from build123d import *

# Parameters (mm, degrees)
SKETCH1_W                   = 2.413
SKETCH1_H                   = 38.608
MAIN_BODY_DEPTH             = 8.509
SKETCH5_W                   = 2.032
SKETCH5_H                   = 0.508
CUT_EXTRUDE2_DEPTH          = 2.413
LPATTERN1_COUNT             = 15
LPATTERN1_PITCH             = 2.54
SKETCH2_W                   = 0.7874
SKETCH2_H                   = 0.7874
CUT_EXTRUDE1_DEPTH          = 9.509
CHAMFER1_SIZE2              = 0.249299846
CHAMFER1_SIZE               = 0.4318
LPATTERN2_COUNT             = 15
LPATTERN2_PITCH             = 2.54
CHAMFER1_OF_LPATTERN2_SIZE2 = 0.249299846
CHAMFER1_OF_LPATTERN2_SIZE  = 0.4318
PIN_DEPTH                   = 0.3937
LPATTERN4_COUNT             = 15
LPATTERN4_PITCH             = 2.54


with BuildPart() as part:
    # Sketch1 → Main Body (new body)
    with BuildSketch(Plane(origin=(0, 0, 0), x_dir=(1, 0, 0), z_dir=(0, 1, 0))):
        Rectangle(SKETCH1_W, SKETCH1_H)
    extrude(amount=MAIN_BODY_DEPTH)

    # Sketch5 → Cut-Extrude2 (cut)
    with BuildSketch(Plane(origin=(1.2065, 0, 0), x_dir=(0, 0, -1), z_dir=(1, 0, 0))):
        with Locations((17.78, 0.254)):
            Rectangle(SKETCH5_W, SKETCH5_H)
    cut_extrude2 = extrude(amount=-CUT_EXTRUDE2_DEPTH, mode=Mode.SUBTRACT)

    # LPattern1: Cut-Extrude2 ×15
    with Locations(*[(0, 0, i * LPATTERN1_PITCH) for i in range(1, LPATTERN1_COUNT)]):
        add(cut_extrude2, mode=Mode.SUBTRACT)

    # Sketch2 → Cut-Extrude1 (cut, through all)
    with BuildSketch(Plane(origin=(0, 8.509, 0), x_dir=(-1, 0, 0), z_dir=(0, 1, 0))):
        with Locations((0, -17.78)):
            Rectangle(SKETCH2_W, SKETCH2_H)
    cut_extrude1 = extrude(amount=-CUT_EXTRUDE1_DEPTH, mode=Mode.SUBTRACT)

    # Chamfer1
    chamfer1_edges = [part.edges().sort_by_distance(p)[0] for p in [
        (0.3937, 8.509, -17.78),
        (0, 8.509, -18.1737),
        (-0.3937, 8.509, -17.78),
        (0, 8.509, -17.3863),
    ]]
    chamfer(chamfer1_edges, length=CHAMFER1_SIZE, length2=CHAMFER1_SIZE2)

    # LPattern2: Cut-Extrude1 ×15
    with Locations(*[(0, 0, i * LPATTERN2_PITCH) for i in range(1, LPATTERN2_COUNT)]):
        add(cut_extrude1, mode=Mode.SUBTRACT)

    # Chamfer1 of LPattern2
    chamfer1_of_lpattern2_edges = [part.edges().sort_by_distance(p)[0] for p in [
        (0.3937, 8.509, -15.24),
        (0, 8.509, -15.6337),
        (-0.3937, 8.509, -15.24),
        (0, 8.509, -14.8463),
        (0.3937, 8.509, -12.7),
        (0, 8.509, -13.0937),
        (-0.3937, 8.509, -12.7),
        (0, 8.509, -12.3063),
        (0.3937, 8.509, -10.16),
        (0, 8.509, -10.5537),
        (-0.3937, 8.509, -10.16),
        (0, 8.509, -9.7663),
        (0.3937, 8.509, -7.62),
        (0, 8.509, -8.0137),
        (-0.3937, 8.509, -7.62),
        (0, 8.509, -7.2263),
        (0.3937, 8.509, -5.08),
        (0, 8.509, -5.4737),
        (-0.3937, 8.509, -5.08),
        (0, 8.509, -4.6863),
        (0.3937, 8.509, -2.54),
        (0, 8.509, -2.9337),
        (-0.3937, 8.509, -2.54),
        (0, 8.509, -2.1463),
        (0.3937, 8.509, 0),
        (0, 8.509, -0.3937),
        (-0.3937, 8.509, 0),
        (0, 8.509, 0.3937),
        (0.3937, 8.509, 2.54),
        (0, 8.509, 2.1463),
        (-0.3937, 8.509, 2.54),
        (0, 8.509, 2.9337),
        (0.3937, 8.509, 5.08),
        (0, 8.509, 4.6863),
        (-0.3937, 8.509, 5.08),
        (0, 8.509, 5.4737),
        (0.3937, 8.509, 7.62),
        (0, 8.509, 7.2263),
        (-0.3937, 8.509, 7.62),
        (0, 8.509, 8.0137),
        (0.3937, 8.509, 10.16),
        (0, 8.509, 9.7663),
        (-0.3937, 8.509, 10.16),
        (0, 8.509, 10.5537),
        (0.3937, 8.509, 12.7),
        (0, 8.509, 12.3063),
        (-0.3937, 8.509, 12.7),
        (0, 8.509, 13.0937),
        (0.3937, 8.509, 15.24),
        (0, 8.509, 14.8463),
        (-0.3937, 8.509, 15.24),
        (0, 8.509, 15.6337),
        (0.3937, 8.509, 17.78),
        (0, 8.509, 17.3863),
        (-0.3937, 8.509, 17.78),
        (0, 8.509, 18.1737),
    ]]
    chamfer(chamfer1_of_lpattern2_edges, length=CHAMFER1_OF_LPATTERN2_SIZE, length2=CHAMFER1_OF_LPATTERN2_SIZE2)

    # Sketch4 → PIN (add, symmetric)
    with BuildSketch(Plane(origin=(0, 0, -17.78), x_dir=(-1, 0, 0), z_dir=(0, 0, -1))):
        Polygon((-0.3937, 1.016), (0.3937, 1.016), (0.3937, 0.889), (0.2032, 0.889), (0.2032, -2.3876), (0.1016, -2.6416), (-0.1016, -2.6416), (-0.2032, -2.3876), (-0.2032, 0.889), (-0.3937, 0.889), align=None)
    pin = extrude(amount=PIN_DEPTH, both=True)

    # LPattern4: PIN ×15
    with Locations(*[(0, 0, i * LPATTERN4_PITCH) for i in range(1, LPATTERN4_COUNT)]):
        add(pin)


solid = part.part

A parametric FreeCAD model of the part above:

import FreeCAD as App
import Part
import Sketcher
from FreeCAD import Vector
Q = App.Units.Quantity


def edges_at(feature, points):
    """Names of the edges that pass closest to the given points."""
    edges = feature.Shape.Edges
    near = lambda p: min(range(len(edges)), key=lambda i: edges[i].distToShape(Part.Vertex(*p))[0])
    return sorted({f"Edge{near(p) + 1}" for p in points})


def add_polygon(sketch, points):
    """Adds a closed chain of lines whose ends are joined by coincident constraints."""
    first, n = sketch.GeometryCount, len(points)
    for a, b in zip(points, points[1:] + points[:1]):
        sketch.addGeometry(Part.LineSegment(App.Vector(*a, 0), App.Vector(*b, 0)), False)
    for i in range(n):
        sketch.addConstraint(Sketcher.Constraint("Coincident", first + i, 2, first + (i + 1) % n, 1))

doc = App.newDocument("Part")
body = doc.addObject("PartDesign::Body", "Body")

# Sketch on XZ plane
sketch1 = body.newObject("Sketcher::SketchObject", "Sketch")
sketch1.AttachmentSupport = (doc.getObject("XZ_Plane"), [""])
sketch1.MapMode = "FlatFace"
add_polygon(sketch1, [(-1.2, -19.3), (-1.2, 19.3), (1.2, 19.3), (1.2, -19.3)])  # lines 0-3
sketch1.addConstraint([
    Sketcher.Constraint("Vertical", 0),
    Sketcher.Constraint("Horizontal", 1),
    Sketcher.Constraint("Vertical", 2),
    Sketcher.Constraint("Horizontal", 3),
    Sketcher.Constraint("Symmetric", 0, 2, 2, 2, -1, 1),
    Sketcher.Constraint("DistanceY", 0, 1, 0, 2, Q("1.52 in")),
    Sketcher.Constraint("DistanceX", 1, 1, 1, 2, Q("0.095 in")),
])
pad1 = body.newObject("PartDesign::Pad", "Pad")
pad1.Profile = sketch1
pad1.Length = Q("0.335 in")
pad1.Reversed = True

# Sketch on YZ plane
sketch2 = body.newObject("Sketcher::SketchObject", "Sketch001")
sketch2.AttachmentSupport = (doc.getObject("YZ_Plane"), [""])
sketch2.MapMode = "FlatFace"
sketch2.AttachmentOffset = App.Placement(Vector(0, 0, 0.0475 * 25.4), App.Rotation())
add_polygon(sketch2, [(0.5, -16.8), (0, -16.8), (0, -18.8), (0.5, -18.8)])  # lines 0-3
sketch2.addConstraint([
    Sketcher.Constraint("Horizontal", 0),
    Sketcher.Constraint("Vertical", 1),
    Sketcher.Constraint("Horizontal", 2),
    Sketcher.Constraint("Vertical", 3),
    Sketcher.Constraint("PointOnObject", 0, 2, -2),
    Sketcher.Constraint("DistanceX", 0, 2, 0, 1, Q("0.02 in")),
    Sketcher.Constraint("DistanceY", 1, 2, 1, 1, Q("0.08 in")),
    Sketcher.Constraint("DistanceY", 0, 2, -1, 1, Q("0.66 in")),
])
pocket1 = body.newObject("PartDesign::Pocket", "Pocket")
pocket1.Profile = sketch2
pocket1.Length = Q("0.095 in")
doc.recompute()

linearpattern = body.newObject("PartDesign::LinearPattern", "LinearPattern")
linearpattern.Originals = [pocket1]
linearpattern.Direction = (doc.getObject("Z_Axis"), [""])
linearpattern.Mode = "offset"
linearpattern.Offset = Q("0.1 in")
linearpattern.Occurrences = 15
body.Tip = linearpattern

# Sketch on XZ plane
sketch3 = body.newObject("Sketcher::SketchObject", "Sketch002")
sketch3.AttachmentSupport = (doc.getObject("XZ_Plane"), [""])
sketch3.MapMode = "FlatFace"
sketch3.AttachmentOffset = App.Placement(Vector(0, 0, -0.335 * 25.4), App.Rotation())
add_polygon(sketch3, [(0.4, -17.4), (0.4, -18.2), (-0.4, -18.2), (-0.4, -17.4)])  # lines 0-3
sketch3.addConstraint([
    Sketcher.Constraint("Vertical", 0),
    Sketcher.Constraint("Horizontal", 1),
    Sketcher.Constraint("Vertical", 2),
    Sketcher.Constraint("Horizontal", 3),
    Sketcher.Constraint("Equal", 3, 0),
    Sketcher.Constraint("DistanceX", 1, 2, 1, 1, Q("0.031 in")),
    Sketcher.Constraint("DistanceX", -1, 1, 0, 2, Q("0.0155 in")),
    Sketcher.Constraint("DistanceY", 0, 2, -1, 1, Q("0.7155 in")),
])
pocket2 = body.newObject("PartDesign::Pocket", "Pocket001")
pocket2.Profile = sketch3
pocket2.Type = "ThroughAll"
pocket2.Reversed = True
doc.recompute()

chamfer = body.newObject("PartDesign::Chamfer", "Chamfer")
chamfer.Base = (pocket2, edges_at(pocket2, [
    (0.394, 8.509, -17.78),
    (0, 8.509, -18.174),
    (-0.394, 8.509, -17.78),
    (0, 8.509, -17.386),
]))
chamfer.ChamferType = "Two distances"
chamfer.Size = Q("0.017 in")
chamfer.Size2 = 0.2493
doc.recompute()

linearpattern2 = body.newObject("PartDesign::LinearPattern", "LinearPattern001")
linearpattern2.Originals = [pocket2]
linearpattern2.Direction = (doc.getObject("Z_Axis"), [""])
linearpattern2.Mode = "offset"
linearpattern2.Offset = Q("0.1 in")
linearpattern2.Occurrences = 15
body.Tip = linearpattern2
doc.recompute()

chamfer2 = body.newObject("PartDesign::Chamfer", "Chamfer001")
chamfer2.Base = (linearpattern2, edges_at(linearpattern2, [
    (0.394, 8.509, -15.24),
    (0, 8.509, -15.634),
    (-0.394, 8.509, -15.24),
    (0, 8.509, -14.846),
    (0.394, 8.509, -12.7),
    (0, 8.509, -13.094),
    (-0.394, 8.509, -12.7),
    (0, 8.509, -12.306),
    (0.394, 8.509, -10.16),
    (0, 8.509, -10.554),
    (-0.394, 8.509, -10.16),
    (0, 8.509, -9.766),
    (0.394, 8.509, -7.62),
    (0, 8.509, -8.014),
    (-0.394, 8.509, -7.62),
    (0, 8.509, -7.226),
    (0.394, 8.509, -5.08),
    (0, 8.509, -5.474),
    (-0.394, 8.509, -5.08),
    (0, 8.509, -4.686),
    (0.394, 8.509, -2.54),
    (0, 8.509, -2.934),
    (-0.394, 8.509, -2.54),
    (0, 8.509, -2.146),
    (0.394, 8.509, 0),
    (0, 8.509, -0.394),
    (-0.394, 8.509, 0),
    (0, 8.509, 0.394),
    (0.394, 8.509, 2.54),
    (0, 8.509, 2.146),
    (-0.394, 8.509, 2.54),
    (0, 8.509, 2.934),
    (0.394, 8.509, 5.08),
    (0, 8.509, 4.686),
    (-0.394, 8.509, 5.08),
    (0, 8.509, 5.474),
    (0.394, 8.509, 7.62),
    (0, 8.509, 7.226),
    (-0.394, 8.509, 7.62),
    (0, 8.509, 8.014),
    (0.394, 8.509, 10.16),
    (0, 8.509, 9.766),
    (-0.394, 8.509, 10.16),
    (0, 8.509, 10.554),
    (0.394, 8.509, 12.7),
    (0, 8.509, 12.306),
    (-0.394, 8.509, 12.7),
    (0, 8.509, 13.094),
    (0.394, 8.509, 15.24),
    (0, 8.509, 14.846),
    (-0.394, 8.509, 15.24),
    (0, 8.509, 15.634),
    (0.394, 8.509, 17.78),
    (0, 8.509, 17.386),
    (-0.394, 8.509, 17.78),
    (0, 8.509, 18.174),
]))
chamfer2.ChamferType = "Two distances"
chamfer2.Size = Q("0.017 in")
chamfer2.Size2 = 0.2493

# Sketch on XY plane
sketch4 = body.newObject("Sketcher::SketchObject", "Sketch003")
sketch4.AttachmentSupport = (doc.getObject("XY_Plane"), [""])
sketch4.MapMode = "FlatFace"
sketch4.AttachmentOffset = App.Placement(Vector(0, 0, -0.7 * 25.4), App.Rotation())
add_polygon(sketch4, [(-0.39, 1.02), (0.39, 1.02), (0.39, 0.89), (0.2, 0.89), (0.2, -2.39), (0.1, -2.64), (-0.1, -2.64), (-0.2, -2.39), (-0.2, 0.89), (-0.39, 0.89)])  # lines 0-9
sketch4.addConstraint([
    Sketcher.Constraint("Horizontal", 0),
    Sketcher.Constraint("Vertical", 1),
    Sketcher.Constraint("Horizontal", 2),
    Sketcher.Constraint("Vertical", 3),
    Sketcher.Constraint("Horizontal", 5),
    Sketcher.Constraint("Vertical", 7),
    Sketcher.Constraint("Horizontal", 8),
    Sketcher.Constraint("Vertical", 9),
    Sketcher.Constraint("Symmetric", 3, 2, 6, 2, -2),
    Sketcher.Constraint("Symmetric", 1, 2, 8, 2, -2),
    Sketcher.Constraint("Equal", 4, 6),
    Sketcher.Constraint("DistanceX", 0, 1, 0, 2, Q("0.031 in")),
    Sketcher.Constraint("DistanceX", 5, 2, 5, 1, Q("0.008 in")),
    Sketcher.Constraint("DistanceY", 1, 2, 1, 1, Q("0.005 in")),
    Sketcher.Constraint("DistanceY", 3, 2, 3, 1, Q("0.129 in")),
    Sketcher.Constraint("DistanceY", -1, 1, 0, 2, Q("0.04 in")),
    Sketcher.Constraint("DistanceY", 4, 2, 3, 2, Q("0.01 in")),
    Sketcher.Constraint("DistanceX", 2, 2, 2, 1, Q("0.0075 in")),
])
pad2 = body.newObject("PartDesign::Pad", "Pad001")
pad2.Profile = sketch4
pad2.Length = Q("0.031 in")
pad2.Midplane = True
doc.recompute()

linearpattern3 = body.newObject("PartDesign::LinearPattern", "LinearPattern002")
linearpattern3.Originals = [pad2]
linearpattern3.Direction = (doc.getObject("Z_Axis"), [""])
linearpattern3.Mode = "offset"
linearpattern3.Offset = Q("0.1 in")
linearpattern3.Occurrences = 15
body.Tip = linearpattern3

doc.recompute()
